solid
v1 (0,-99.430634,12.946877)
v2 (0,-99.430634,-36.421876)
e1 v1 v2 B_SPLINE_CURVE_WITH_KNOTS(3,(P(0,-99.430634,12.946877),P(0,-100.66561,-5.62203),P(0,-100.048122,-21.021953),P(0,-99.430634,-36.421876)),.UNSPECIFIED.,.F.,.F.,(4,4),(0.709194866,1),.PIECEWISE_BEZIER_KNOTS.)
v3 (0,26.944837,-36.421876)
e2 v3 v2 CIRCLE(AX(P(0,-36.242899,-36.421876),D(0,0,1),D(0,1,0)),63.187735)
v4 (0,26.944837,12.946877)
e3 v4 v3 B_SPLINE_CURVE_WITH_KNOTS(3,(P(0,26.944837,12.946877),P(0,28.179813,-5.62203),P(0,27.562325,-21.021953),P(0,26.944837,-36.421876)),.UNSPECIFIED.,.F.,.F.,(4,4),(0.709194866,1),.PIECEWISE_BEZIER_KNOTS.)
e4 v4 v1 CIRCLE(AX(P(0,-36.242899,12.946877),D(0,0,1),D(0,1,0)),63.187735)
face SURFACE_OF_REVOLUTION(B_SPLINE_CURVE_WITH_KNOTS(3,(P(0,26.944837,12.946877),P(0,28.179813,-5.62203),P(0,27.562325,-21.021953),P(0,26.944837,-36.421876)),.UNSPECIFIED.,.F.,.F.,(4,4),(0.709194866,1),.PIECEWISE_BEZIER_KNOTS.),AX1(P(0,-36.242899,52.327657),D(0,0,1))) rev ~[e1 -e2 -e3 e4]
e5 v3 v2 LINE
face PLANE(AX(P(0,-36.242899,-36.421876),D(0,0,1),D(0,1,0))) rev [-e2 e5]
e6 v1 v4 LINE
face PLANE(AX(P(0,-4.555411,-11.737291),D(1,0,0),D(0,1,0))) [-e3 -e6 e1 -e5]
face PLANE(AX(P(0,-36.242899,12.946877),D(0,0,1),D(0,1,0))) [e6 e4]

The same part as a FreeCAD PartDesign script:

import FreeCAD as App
import Part
import Sketcher

V = App.Vector
Q = App.Units.Quantity

doc = App.newDocument("Part")
body = doc.addObject("PartDesign::Body", "Body")

# Sketch on YZ plane
sketch1 = body.newObject("Sketcher::SketchObject", "Sketch")
sketch1.AttachmentSupport = (doc.getObject("YZ_Plane"), [""])
sketch1.MapMode = "FlatFace"
sketch1.addGeometry(Part.LineSegment(V(-36.242899, 12.946877, 0), V(-36.242899, -36.421876, 0)), False)
sketch1.addGeometry(Part.LineSegment(V(-36.242899, -36.421876, 0), V(26.944837, -36.421876, 0)), False)
sketch1.addGeometry(Part.BSplineCurve([V(26.944837, 12.946877, 0), V(28.179813, -5.62203, 0), V(27.562325, -21.021953, 0), V(26.944837, -36.421876, 0)], [4, 4], [0.709194866, 1], False, 3, [1, 1, 1, 1], False), False)
sketch1.addGeometry(Part.LineSegment(V(26.944837, 12.946877, 0), V(-36.242899, 12.946877, 0)), False)
sketch1.addGeometry(Part.LineSegment(V(-36.242899, -36.421876, 0), V(-36.242899, 12.946877, 0)), True)  # axis
sketch1.addConstraint(Sketcher.Constraint("Block", 2))
sketch1.addConstraint(Sketcher.Constraint("Coincident", 0, 2, 1, 1))
sketch1.addConstraint(Sketcher.Constraint("Coincident", 1, 2, 2, 2))
sketch1.addConstraint(Sketcher.Constraint("Coincident", 2, 1, 3, 1))
sketch1.addConstraint(Sketcher.Constraint("Coincident", 3, 2, 0, 1))
sketch1.addConstraint(Sketcher.Constraint("Vertical", 0))
sketch1.addConstraint(Sketcher.Constraint("Horizontal", 1))
sketch1.addConstraint(Sketcher.Constraint("Horizontal", 3))
sketch1.addConstraint(Sketcher.Constraint("Vertical", 4))
sketch1.addConstraint(Sketcher.Constraint("Coincident", 4, 1, 0, 2))
sketch1.addConstraint(Sketcher.Constraint("Equal", 0, 4))
sketch1.addConstraint(Sketcher.Constraint("DistanceX", 0, 2, -1, 1, Q("36.242899 mm")))
revolution = body.newObject("PartDesign::Revolution", "Revolution")
revolution.Profile = sketch1
revolution.ReferenceAxis = (sketch1, ["Axis0"])
revolution.Angle = 180

doc.recompute()
